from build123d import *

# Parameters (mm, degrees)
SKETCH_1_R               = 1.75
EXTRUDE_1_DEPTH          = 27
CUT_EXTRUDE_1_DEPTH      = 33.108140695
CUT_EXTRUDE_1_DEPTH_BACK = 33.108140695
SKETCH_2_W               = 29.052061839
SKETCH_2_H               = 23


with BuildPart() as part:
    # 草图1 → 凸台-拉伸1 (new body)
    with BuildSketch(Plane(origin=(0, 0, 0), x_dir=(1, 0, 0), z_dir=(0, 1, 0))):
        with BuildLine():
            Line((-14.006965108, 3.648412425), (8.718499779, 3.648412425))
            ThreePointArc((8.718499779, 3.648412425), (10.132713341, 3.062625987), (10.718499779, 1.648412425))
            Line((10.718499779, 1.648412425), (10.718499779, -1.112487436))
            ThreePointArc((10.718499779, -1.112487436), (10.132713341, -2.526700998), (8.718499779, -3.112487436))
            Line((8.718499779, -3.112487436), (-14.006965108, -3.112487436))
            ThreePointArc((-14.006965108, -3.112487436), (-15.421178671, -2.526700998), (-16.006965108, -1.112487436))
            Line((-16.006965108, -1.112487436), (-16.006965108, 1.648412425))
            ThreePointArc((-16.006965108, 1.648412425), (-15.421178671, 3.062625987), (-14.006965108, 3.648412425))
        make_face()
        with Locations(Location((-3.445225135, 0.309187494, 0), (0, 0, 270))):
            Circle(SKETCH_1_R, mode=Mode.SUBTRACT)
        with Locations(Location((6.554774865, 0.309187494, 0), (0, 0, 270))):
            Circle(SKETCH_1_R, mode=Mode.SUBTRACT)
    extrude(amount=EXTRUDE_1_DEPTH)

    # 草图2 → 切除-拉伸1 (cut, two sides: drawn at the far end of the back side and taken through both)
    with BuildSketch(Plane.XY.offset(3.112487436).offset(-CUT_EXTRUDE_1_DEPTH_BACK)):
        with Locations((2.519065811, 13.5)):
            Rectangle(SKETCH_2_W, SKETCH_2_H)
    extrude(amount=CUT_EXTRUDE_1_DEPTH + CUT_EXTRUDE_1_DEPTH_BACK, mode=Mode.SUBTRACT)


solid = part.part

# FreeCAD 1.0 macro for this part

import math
import FreeCAD as App
import Part
import Sketcher
from FreeCAD import Vector

doc = App.newDocument("Part")
body = doc.addObject("PartDesign::Body", "Body")

# Sketch on XZ plane
sketch1 = body.newObject("Sketcher::SketchObject", "Sketch")
sketch1.AttachmentSupport = (doc.getObject("XZ_Plane"), [""])
sketch1.MapMode = "FlatFace"
sketch1.addGeometry([
    Part.LineSegment(Vector(8.7, -3.6, 0), Vector(-14, -3.6, 0)),  # 0
    Part.ArcOfCircle(Part.Circle(Vector(-14, -1.6, 0), Vector(0, 0, 1), 2), math.radians(180), math.radians(270)),  # 1
    Part.LineSegment(Vector(-16, -1.6, 0), Vector(-16, 1.1, 0)),  # 2
    Part.ArcOfCircle(Part.Circle(Vector(-14, 1.1, 0), Vector(0, 0, 1), 2), math.radians(90), math.radians(180)),  # 3
    Part.LineSegment(Vector(-14, 3.1, 0), Vector(8.7, 3.1, 0)),  # 4
    Part.ArcOfCircle(Part.Circle(Vector(8.7, 1.1, 0), Vector(0, 0, 1), 2), math.radians(0), math.radians(90)),  # 5
    Part.LineSegment(Vector(10.7, 1.1, 0), Vector(10.7, -1.6, 0)),  # 6
    Part.ArcOfCircle(Part.Circle(Vector(8.7, -1.6, 0), Vector(0, 0, 1), 2), math.radians(-90), math.radians(0)),  # 7
    Part.Circle(Vector(6.6, -0.3, 0), Vector(0, 0, 1), 1.8),  # 8
    Part.Circle(Vector(-3.4, -0.3, 0), Vector(0, 0, 1), 1.8),  # 9
], False)
sketch1.addConstraint([
    Sketcher.Constraint("Tangent", 0, 2, 1, 2),
    Sketcher.Constraint("Tangent", 1, 1, 2, 1),
    Sketcher.Constraint("Tangent", 2, 2, 3, 2),
    Sketcher.Constraint("Tangent", 3, 1, 4, 1),
    Sketcher.Constraint("Tangent", 4, 2, 5, 2),
    Sketcher.Constraint("Tangent", 5, 1, 6, 1),
    Sketcher.Constraint("Tangent", 6, 2, 7, 2),
    Sketcher.Constraint("Tangent", 7, 1, 0, 1),
    Sketcher.Constraint("Horizontal", 0),
    Sketcher.Constraint("Vertical", 2),
    Sketcher.Constraint("Horizontal", 4),
    Sketcher.Constraint("Vertical", 6),
    Sketcher.Constraint("Equal", 1, 3),
    Sketcher.Constraint("Equal", 3, 5),
    Sketcher.Constraint("Equal", 5, 7),
    Sketcher.Constraint("Equal", 8, 9),
    Sketcher.Constraint("Horizontal", 8, 3, 9, 3),
    Sketcher.Constraint("Radius", 1, 2.0),
    Sketcher.Constraint("Diameter", 8, 3.5),
    Sketcher.Constraint("DistanceX", 9, 3, 8, 3, 10.0),
    Sketcher.Constraint("DistanceY", 2, 1, 2, 2, 2.7609),
    Sketcher.Constraint("DistanceX", -1, 1, 5, 3, 8.7185),
    Sketcher.Constraint("DistanceX", 0, 2, 0, 1, 22.725465),
    Sketcher.Constraint("DistanceX", 1, 3, 8, 3, 20.56174),
    Sketcher.Constraint("DistanceY", 1, 3, -1, 1, 1.648412),
    Sketcher.Constraint("DistanceY", 8, 3, -1, 1, 0.309187),
])
pad1 = body.newObject("PartDesign::Pad", "Pad")
pad1.Profile = sketch1
pad1.Length = 27
pad1.Reversed = True

# Sketch on XY plane
sketch2 = body.newObject("Sketcher::SketchObject", "Sketch001")
sketch2.AttachmentSupport = (doc.getObject("XY_Plane"), [""])
sketch2.MapMode = "FlatFace"
sketch2.AttachmentOffset = App.Placement(Vector(0, 0, 3.112487), App.Rotation())
sketch2.addGeometry([
    Part.LineSegment(Vector(-12, 25, 0), Vector(-12, 2, 0)),
    Part.LineSegment(Vector(-12, 2, 0), Vector(17, 2, 0)),
    Part.LineSegment(Vector(17, 2, 0), Vector(17, 25, 0)),
    Part.LineSegment(Vector(17, 25, 0), Vector(-12, 25, 0)),
], False)
sketch2.addConstraint([
    Sketcher.Constraint("Coincident", 0, 2, 1, 1),
    Sketcher.Constraint("Coincident", 1, 2, 2, 1),
    Sketcher.Constraint("Coincident", 2, 2, 3, 1),
    Sketcher.Constraint("Coincident", 3, 2, 0, 1),
    Sketcher.Constraint("Vertical", 0),
    Sketcher.Constraint("Horizontal", 1),
    Sketcher.Constraint("Vertical", 2),
    Sketcher.Constraint("Horizontal", 3),
    Sketcher.Constraint("DistanceY", 0, 2, 0, 1, 23.0),
    Sketcher.Constraint("DistanceY", -1, 1, 0, 2, 2.0),
    Sketcher.Constraint("DistanceX", 1, 1, 1, 2, 29.052062),
    Sketcher.Constraint("DistanceX", 0, 2, -1, 1, 12.006965),
])
pocket1 = body.newObject("PartDesign::Pocket", "Pocket")
pocket1.Profile = sketch2
pocket1.Type = "ThroughAll"
pocket1.Midplane = True

doc.recompute()
